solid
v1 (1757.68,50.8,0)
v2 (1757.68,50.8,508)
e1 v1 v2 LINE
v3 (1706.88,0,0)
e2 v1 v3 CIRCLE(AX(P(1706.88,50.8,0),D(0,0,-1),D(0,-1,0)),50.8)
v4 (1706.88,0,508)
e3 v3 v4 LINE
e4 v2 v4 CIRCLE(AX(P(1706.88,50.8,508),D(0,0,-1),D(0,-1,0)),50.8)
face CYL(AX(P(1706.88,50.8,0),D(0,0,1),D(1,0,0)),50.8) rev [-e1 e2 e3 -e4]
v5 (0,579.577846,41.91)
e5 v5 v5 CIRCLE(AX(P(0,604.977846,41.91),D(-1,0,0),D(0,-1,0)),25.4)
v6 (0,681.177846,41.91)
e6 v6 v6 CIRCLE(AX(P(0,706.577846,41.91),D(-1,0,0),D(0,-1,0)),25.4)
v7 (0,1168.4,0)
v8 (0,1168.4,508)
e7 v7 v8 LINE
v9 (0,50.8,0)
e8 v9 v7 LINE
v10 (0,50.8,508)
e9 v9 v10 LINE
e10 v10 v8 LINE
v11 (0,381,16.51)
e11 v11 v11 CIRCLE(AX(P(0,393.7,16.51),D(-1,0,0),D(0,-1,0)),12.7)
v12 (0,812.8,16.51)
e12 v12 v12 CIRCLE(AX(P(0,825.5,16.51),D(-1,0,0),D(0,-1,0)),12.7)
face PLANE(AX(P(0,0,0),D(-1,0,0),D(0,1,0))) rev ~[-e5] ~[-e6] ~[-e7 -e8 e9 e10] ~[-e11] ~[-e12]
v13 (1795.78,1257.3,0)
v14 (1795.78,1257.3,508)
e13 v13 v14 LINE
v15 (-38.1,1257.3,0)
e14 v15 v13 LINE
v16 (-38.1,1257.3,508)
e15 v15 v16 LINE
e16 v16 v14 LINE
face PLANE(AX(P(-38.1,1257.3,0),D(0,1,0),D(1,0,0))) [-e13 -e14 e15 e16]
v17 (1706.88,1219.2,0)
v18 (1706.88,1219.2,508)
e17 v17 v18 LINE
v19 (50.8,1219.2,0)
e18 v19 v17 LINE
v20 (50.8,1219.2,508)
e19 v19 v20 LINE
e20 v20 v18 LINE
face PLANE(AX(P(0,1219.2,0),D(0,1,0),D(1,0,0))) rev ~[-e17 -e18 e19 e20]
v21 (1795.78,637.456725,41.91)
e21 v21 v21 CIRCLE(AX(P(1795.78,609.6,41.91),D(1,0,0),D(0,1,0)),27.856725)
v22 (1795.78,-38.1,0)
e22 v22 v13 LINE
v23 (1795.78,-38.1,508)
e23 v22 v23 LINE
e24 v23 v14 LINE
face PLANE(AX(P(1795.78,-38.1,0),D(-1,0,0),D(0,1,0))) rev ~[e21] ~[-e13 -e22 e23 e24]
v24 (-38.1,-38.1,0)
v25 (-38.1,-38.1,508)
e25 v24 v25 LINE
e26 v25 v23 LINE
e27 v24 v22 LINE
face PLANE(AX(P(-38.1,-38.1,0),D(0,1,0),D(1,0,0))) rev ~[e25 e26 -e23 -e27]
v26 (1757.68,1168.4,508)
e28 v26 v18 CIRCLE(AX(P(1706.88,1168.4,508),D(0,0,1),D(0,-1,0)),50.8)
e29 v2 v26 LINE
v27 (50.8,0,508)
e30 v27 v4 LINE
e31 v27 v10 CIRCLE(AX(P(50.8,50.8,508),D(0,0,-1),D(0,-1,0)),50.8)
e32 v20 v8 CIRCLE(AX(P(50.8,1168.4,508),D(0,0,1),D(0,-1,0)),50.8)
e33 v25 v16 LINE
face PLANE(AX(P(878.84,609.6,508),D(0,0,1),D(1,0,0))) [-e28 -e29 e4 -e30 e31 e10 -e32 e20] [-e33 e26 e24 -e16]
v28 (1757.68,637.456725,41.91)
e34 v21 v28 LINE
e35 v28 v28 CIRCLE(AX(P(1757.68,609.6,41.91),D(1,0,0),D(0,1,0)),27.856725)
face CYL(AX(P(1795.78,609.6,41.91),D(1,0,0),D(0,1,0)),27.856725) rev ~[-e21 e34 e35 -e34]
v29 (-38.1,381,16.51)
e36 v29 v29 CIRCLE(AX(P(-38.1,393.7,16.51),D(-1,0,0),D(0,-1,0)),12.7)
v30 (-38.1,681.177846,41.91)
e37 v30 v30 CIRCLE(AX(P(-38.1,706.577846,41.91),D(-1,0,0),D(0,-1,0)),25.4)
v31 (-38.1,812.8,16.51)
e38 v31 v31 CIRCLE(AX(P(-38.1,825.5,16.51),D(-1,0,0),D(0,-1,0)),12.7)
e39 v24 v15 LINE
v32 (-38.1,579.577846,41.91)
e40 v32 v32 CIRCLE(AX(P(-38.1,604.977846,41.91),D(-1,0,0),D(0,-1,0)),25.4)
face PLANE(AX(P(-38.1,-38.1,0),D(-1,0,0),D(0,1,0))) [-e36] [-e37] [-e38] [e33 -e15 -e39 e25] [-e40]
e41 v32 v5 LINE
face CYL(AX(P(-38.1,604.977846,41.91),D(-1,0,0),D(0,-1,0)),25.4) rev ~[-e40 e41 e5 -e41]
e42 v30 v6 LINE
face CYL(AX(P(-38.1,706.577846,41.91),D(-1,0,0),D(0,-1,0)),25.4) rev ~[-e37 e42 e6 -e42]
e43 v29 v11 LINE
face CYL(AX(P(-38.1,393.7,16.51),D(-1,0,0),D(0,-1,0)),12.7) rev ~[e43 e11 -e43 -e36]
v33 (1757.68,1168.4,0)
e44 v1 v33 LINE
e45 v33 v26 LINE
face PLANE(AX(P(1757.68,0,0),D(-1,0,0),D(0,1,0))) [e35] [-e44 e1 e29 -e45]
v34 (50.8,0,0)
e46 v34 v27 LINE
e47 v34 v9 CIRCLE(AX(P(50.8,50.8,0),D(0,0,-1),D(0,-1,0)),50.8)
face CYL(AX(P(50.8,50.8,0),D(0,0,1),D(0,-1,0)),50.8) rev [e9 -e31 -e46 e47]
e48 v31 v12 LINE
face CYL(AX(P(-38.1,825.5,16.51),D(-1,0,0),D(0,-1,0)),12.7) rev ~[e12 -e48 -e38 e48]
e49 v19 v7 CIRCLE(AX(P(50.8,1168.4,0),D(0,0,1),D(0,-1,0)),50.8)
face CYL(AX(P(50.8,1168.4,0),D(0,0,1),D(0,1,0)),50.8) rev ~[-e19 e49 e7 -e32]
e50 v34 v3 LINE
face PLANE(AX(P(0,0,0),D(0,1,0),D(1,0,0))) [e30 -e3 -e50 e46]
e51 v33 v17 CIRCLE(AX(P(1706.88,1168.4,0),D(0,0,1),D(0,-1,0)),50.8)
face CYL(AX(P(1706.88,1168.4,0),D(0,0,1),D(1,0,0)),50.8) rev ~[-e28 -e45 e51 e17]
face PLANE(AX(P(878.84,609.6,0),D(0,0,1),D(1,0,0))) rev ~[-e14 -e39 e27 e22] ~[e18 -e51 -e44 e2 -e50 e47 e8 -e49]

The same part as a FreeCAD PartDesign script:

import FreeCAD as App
import Part
import Sketcher
Q = App.Units.Quantity


def edges_at(feature, points):
    """Names of the edges that pass closest to the given points."""
    edges = feature.Shape.Edges
    near = lambda p: min(range(len(edges)), key=lambda i: edges[i].distToShape(Part.Vertex(*p))[0])
    return sorted({f"Edge{near(p) + 1}" for p in points})


def add_polygon(sketch, points):
    """Adds a closed chain of lines whose ends are joined by coincident constraints."""
    first, n = sketch.GeometryCount, len(points)
    for a, b in zip(points, points[1:] + points[:1]):
        sketch.addGeometry(Part.LineSegment(App.Vector(*a, 0), App.Vector(*b, 0)), False)
    for i in range(n):
        sketch.addConstraint(Sketcher.Constraint("Coincident", first + i, 2, first + (i + 1) % n, 1))

doc = App.newDocument("Part")
body = doc.addObject("PartDesign::Body", "Body")

sketch1 = doc.addObject("Sketcher::SketchObject", "Sketch")
body.addObject(sketch1)
sketch1.AttachmentSupport = (doc.XY_Plane, [""])
sketch1.MapMode = "FlatFace"
add_polygon(sketch1, [(-38, 1257), (-38, -38), (1796, -38), (1796, 1257)])
add_polygon(sketch1, [(1758, 0), (0, 0), (0, 1219), (1758, 1219)])
sketch1.addConstraint([
    Sketcher.Constraint("Vertical", 0),
    Sketcher.Constraint("Horizontal", 1),
    Sketcher.Constraint("Vertical", 2),
    Sketcher.Constraint("Horizontal", 3),
    Sketcher.Constraint("Horizontal", 4),
    Sketcher.Constraint("Vertical", 5),
    Sketcher.Constraint("Horizontal", 6),
    Sketcher.Constraint("Vertical", 7),
    Sketcher.Constraint("Coincident", 4, 2, -1, 1),
    Sketcher.Constraint("DistanceY", 0, 2, 0, 1, Q("51 in")),
    Sketcher.Constraint("DistanceY", 5, 1, 5, 2, Q("48 in")),
    Sketcher.Constraint("DistanceX", 1, 1, 1, 2, Q("72.2 in")),
    Sketcher.Constraint("DistanceX", 4, 2, 4, 1, Q("69.2 in")),
    Sketcher.Constraint("DistanceX", 0, 2, -1, 1, Q("1.5 in")),
    Sketcher.Constraint("DistanceY", 0, 2, -1, 1, Q("1.5 in")),
])
pad1 = doc.addObject("PartDesign::Pad", "Pad")
body.addObject(pad1)
pad1.Profile = sketch1
pad1.Length = Q("20 in")
doc.recompute()

fillet = doc.addObject("PartDesign::Fillet", "Fillet")
body.addObject(fillet)
fillet.Base = (pad1, edges_at(pad1, [(1757.68, 1219.2, 254)]))
fillet.Radius = Q("2 in")
doc.recompute()

fillet2 = doc.addObject("PartDesign::Fillet", "Fillet001")
body.addObject(fillet2)
fillet2.Base = (fillet, edges_at(fillet, [(0, 1219.2, 254)]))
fillet2.Radius = Q("2 in")
doc.recompute()

fillet3 = doc.addObject("PartDesign::Fillet", "Fillet002")
body.addObject(fillet3)
fillet3.Base = (fillet2, edges_at(fillet2, [(1757.68, 0, 254)]))
fillet3.Radius = Q("2 in")
doc.recompute()

fillet4 = doc.addObject("PartDesign::Fillet", "Fillet003")
body.addObject(fillet4)
fillet4.Base = (fillet3, edges_at(fillet3, [(0, 0, 254)]))
fillet4.Radius = Q("2 in")

sketch2 = doc.addObject("Sketcher::SketchObject", "Sketch001")
body.addObject(sketch2)
sketch2.AttachmentSupport = (doc.YZ_Plane, [""])
sketch2.MapMode = "FlatFace"
sketch2.AttachmentOffset = App.Placement(App.Vector(0, 0, -1.5 * 25.4), App.Rotation())
sketch2.addGeometry([
    Part.Circle(App.Vector(605, 42, 0), App.Vector(0, 0, 1), 25),
    Part.Circle(App.Vector(707, 42, 0), App.Vector(0, 0, 1), 25),
], False)
sketch2.addConstraint([
    Sketcher.Constraint("Equal", 0, 1),
    Sketcher.Constraint("Horizontal", 0, 3, 1, 3),
    Sketcher.Constraint("Diameter", 0, Q("2 in")),
    Sketcher.Constraint("DistanceX", 0, 3, 1, 3, Q("4 in")),
    Sketcher.Constraint("DistanceY", -1, 1, 0, 3, Q("1.65 in")),
    Sketcher.Constraint("DistanceX", -1, 1, 0, 3, 604.977846),
])
pocket1 = doc.addObject("PartDesign::Pocket", "Pocket")
body.addObject(pocket1)
pocket1.Profile = sketch2
pocket1.Length = Q("2 in")
pocket1.Reversed = True

sketch3 = doc.addObject("Sketcher::SketchObject", "Sketch002")
body.addObject(sketch3)
sketch3.AttachmentSupport = (doc.YZ_Plane, [""])
sketch3.MapMode = "FlatFace"
sketch3.AttachmentOffset = App.Placement(App.Vector(0, 0, -1.5 * 25.4), App.Rotation())
sketch3.addGeometry([
    Part.Circle(App.Vector(394, 17, 0), App.Vector(0, 0, 1), 13),
    Part.Circle(App.Vector(826, 17, 0), App.Vector(0, 0, 1), 13),
], False)
sketch3.addConstraint([
    Sketcher.Constraint("Equal", 0, 1),
    Sketcher.Constraint("Horizontal", 0, 3, 1, 3),
    Sketcher.Constraint("Diameter", 0, Q("1 in")),
    Sketcher.Constraint("DistanceX", 0, 3, 1, 3, Q("17 in")),
    Sketcher.Constraint("DistanceX", -1, 1, 0, 3, Q("15.5 in")),
    Sketcher.Constraint("DistanceY", -1, 1, 0, 3, Q("0.65 in")),
])
pocket2 = doc.addObject("PartDesign::Pocket", "Pocket001")
body.addObject(pocket2)
pocket2.Profile = sketch3
pocket2.Length = Q("2 in")
pocket2.Reversed = True

sketch4 = doc.addObject("Sketcher::SketchObject", "Sketch003")
body.addObject(sketch4)
sketch4.AttachmentSupport = (doc.YZ_Plane, [""])
sketch4.MapMode = "FlatFace"
sketch4.AttachmentOffset = App.Placement(App.Vector(0, 0, 70.7 * 25.4), App.Rotation())
sketch4.addGeometry(Part.Circle(App.Vector(610, 42, 0), App.Vector(0, 0, 1), 28), False)
sketch4.addConstraint([
    Sketcher.Constraint("DistanceX", -1, 1, 0, 3, Q("24 in")),
    Sketcher.Constraint("DistanceY", -1, 1, 0, 3, Q("1.65 in")),
    Sketcher.Constraint("Diameter", 0, 55.71345),
])
pocket3 = doc.addObject("PartDesign::Pocket", "Pocket002")
body.addObject(pocket3)
pocket3.Profile = sketch4
pocket3.Length = Q("2 in")

doc.recompute()
